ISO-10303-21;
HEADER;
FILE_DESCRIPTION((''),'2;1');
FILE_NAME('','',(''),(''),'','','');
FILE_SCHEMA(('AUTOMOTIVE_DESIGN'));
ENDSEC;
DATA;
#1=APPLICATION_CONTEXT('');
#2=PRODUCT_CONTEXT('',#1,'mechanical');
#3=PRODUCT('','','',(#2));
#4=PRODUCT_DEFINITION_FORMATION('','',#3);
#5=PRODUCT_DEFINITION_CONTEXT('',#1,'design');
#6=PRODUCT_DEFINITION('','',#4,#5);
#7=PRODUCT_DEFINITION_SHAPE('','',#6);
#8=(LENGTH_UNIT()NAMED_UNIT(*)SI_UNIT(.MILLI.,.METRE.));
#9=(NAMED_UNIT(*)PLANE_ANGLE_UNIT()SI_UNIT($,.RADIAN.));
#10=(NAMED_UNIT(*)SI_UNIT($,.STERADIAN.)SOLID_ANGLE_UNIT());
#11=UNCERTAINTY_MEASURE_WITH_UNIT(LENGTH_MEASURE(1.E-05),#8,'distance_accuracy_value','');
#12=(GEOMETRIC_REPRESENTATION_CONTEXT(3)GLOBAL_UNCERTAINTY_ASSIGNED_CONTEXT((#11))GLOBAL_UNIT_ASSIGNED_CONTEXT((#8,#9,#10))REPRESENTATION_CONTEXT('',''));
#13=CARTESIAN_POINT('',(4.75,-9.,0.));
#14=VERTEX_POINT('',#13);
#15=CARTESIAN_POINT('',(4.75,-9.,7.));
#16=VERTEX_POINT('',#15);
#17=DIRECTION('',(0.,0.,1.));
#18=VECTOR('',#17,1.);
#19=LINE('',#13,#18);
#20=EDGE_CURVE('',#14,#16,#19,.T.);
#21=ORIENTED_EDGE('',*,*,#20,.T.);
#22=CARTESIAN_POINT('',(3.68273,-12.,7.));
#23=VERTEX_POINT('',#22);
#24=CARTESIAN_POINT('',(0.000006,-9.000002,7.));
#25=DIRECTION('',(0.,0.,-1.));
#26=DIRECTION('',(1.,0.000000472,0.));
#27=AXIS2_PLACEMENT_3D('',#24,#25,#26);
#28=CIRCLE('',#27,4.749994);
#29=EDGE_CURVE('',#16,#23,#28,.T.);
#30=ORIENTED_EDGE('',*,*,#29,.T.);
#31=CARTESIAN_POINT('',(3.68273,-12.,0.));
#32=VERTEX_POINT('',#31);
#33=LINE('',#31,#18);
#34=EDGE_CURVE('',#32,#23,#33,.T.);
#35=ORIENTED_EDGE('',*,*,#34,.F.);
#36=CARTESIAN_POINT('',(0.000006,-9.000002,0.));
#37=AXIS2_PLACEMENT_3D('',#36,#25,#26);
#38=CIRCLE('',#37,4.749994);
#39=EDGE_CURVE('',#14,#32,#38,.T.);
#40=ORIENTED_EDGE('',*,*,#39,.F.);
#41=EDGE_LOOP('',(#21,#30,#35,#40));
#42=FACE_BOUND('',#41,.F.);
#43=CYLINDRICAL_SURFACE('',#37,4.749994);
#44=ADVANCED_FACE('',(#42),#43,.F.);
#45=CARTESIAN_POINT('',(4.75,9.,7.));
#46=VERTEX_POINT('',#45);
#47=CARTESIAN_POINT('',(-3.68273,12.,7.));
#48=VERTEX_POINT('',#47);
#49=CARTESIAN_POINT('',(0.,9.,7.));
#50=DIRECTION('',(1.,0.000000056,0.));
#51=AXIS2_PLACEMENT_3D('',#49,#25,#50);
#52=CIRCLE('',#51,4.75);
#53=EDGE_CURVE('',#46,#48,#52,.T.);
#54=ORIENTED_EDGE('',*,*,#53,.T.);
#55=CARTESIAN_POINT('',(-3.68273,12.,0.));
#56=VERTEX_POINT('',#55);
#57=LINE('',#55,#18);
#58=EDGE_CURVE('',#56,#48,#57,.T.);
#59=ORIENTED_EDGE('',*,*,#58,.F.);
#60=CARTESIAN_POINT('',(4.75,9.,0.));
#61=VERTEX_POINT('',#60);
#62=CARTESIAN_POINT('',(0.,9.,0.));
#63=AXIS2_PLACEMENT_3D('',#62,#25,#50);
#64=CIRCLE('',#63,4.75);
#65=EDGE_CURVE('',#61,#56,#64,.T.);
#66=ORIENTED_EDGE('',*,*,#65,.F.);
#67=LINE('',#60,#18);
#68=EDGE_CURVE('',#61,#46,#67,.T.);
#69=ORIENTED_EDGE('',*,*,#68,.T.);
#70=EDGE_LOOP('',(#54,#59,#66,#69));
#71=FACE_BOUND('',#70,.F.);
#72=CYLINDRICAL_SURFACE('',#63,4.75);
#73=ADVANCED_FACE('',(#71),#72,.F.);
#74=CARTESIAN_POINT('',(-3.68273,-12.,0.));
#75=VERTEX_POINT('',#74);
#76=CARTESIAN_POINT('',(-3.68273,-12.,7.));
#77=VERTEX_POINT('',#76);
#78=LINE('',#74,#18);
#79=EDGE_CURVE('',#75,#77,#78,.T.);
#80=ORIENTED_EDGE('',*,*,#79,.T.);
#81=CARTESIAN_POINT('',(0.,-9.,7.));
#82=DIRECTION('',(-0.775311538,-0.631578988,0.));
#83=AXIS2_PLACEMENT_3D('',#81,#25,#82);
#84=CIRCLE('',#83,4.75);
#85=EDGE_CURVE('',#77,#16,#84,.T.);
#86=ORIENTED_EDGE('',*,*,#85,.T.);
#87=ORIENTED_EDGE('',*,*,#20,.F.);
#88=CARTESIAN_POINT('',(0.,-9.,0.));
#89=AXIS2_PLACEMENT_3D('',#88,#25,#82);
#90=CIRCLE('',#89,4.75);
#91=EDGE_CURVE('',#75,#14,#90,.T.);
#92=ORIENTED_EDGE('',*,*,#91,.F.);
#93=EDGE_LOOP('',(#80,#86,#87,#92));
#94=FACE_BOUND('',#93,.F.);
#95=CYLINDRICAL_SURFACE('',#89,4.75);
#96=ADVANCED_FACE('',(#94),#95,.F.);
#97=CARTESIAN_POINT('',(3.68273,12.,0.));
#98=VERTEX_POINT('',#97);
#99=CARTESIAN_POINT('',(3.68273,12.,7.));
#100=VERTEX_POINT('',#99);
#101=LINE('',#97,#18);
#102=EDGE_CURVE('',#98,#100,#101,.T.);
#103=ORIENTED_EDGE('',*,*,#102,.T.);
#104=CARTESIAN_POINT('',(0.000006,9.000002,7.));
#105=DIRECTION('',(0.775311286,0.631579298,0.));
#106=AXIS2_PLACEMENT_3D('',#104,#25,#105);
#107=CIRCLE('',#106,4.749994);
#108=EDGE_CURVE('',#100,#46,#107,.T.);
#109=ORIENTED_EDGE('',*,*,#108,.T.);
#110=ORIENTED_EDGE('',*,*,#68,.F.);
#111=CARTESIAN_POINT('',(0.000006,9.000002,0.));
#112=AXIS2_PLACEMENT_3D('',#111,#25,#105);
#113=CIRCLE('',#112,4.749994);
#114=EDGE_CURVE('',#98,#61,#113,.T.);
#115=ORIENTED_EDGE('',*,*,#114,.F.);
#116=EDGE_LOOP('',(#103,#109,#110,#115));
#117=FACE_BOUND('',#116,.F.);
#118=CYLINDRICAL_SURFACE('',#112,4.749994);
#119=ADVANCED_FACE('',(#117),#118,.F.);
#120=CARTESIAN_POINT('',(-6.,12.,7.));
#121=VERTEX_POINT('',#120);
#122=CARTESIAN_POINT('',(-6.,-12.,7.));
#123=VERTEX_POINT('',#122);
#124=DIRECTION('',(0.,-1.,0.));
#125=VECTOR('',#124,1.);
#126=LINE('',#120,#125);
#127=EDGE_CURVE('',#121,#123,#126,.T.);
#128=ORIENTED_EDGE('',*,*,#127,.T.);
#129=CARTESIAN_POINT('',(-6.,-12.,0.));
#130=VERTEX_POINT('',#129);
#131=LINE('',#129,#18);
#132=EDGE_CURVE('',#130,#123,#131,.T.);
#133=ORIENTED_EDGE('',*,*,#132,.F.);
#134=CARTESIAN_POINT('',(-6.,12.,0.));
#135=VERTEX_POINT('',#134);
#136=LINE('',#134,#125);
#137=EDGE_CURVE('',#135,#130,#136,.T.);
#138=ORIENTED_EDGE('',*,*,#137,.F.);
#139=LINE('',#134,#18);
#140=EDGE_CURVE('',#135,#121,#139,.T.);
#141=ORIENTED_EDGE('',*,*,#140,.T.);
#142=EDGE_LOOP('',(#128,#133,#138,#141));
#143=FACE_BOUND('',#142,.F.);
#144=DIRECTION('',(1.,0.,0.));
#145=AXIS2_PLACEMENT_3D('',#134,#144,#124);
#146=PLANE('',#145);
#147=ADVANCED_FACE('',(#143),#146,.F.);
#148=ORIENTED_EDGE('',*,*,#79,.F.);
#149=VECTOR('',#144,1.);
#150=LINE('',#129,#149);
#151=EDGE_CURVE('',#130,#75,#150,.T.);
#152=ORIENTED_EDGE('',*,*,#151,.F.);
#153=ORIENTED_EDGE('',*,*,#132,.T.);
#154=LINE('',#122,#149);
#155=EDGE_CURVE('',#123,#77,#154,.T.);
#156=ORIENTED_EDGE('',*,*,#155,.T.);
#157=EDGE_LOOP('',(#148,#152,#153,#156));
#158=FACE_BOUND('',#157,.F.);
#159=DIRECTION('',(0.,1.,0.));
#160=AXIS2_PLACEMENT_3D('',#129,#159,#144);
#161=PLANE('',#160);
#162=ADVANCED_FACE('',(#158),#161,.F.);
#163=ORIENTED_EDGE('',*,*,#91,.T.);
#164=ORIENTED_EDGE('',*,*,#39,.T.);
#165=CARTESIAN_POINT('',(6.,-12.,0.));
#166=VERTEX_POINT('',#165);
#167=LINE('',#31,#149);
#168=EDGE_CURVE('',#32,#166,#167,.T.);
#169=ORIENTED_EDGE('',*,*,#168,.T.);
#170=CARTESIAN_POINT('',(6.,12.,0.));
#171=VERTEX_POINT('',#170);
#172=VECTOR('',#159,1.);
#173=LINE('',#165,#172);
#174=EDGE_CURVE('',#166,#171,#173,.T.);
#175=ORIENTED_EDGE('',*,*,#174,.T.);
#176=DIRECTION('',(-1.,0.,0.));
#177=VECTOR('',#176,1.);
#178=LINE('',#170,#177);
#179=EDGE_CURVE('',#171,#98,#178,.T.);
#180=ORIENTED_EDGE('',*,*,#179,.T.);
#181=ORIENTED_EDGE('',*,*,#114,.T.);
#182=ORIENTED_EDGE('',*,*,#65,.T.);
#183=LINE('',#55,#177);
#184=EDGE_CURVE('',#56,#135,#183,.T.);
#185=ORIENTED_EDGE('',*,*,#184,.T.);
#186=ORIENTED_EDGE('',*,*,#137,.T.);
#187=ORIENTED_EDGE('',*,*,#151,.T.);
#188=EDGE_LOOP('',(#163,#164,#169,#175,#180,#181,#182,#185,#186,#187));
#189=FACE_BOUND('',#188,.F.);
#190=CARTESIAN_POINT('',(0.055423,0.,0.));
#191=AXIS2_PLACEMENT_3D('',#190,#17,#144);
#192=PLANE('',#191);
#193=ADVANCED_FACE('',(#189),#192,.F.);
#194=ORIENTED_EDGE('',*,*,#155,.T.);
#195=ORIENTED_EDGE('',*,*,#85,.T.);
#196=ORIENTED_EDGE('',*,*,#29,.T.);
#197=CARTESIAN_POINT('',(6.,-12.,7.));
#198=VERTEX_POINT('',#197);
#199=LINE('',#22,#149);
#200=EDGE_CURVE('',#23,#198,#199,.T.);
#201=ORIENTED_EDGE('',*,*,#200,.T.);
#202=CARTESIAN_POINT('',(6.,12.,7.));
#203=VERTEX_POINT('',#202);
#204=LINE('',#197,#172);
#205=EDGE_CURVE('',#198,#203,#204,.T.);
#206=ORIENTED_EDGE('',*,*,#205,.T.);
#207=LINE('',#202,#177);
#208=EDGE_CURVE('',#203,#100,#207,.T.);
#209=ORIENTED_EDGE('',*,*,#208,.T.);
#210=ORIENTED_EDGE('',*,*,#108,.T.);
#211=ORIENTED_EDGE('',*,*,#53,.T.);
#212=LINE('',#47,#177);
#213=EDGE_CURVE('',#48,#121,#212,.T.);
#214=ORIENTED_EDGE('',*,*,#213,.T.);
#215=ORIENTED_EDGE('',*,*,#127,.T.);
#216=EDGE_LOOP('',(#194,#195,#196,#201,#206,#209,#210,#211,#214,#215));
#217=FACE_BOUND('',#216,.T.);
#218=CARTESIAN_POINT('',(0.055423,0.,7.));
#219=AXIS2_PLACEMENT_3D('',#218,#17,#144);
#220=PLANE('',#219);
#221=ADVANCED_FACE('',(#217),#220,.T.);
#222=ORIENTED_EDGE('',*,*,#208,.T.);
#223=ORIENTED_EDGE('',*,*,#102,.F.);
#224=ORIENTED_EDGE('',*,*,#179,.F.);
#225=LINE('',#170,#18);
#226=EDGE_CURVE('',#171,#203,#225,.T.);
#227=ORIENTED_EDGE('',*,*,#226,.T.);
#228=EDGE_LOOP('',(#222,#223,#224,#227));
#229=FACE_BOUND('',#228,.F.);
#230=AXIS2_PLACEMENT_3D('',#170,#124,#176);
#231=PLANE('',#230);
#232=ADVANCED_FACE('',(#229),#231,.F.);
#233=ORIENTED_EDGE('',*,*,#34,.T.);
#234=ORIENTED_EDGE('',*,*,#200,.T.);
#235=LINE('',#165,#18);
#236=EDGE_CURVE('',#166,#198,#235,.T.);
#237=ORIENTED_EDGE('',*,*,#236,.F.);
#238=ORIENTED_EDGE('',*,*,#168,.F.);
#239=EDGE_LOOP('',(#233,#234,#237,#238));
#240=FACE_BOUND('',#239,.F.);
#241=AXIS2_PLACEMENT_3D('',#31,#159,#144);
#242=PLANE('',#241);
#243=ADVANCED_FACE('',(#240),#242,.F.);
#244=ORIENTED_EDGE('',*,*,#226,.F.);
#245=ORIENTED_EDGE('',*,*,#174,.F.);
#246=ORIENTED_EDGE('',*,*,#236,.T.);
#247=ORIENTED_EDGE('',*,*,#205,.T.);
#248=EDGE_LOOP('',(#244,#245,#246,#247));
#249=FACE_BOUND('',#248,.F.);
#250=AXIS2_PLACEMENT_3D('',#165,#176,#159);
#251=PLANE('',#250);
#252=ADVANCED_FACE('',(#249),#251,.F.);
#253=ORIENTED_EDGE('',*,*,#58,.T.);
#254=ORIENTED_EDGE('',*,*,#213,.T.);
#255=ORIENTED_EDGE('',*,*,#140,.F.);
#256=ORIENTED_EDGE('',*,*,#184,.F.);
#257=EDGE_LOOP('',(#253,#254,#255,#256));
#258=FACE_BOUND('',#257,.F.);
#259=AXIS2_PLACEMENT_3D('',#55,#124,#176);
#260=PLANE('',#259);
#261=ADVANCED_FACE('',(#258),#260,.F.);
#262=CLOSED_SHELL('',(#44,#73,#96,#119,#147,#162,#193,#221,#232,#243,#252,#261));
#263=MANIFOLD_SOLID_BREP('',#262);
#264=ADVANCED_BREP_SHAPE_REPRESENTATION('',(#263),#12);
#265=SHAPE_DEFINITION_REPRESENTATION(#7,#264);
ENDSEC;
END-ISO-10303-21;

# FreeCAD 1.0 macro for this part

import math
import FreeCAD as App
import Part
import Sketcher
from FreeCAD import Vector

doc = App.newDocument("Part")
body = doc.addObject("PartDesign::Body", "Body")

# Sketch on XY plane
sketch1 = body.newObject("Sketcher::SketchObject", "Sketch")
sketch1.AttachmentSupport = (doc.getObject("XY_Plane"), [""])
sketch1.MapMode = "FlatFace"
sketch1.addGeometry([
    Part.LineSegment(Vector(6, -12, 0), Vector(6, 12, 0)),  # 0
    Part.LineSegment(Vector(6, 12, 0), Vector(3.68273, 12, 0)),  # 1
    Part.ArcOfCircle(Part.Circle(Vector(0.000006, 9.000002, 0), Vector(0, 0, 1), 4.749994), math.radians(-0.000027), math.radians(39.166737)),  # 2
    Part.ArcOfCircle(Part.Circle(Vector(0, 9, 0), Vector(0, 0, 1), 4.75), math.radians(140.833286), math.radians(360.000003)),  # 3
    Part.LineSegment(Vector(-3.68273, 12, 0), Vector(-6, 12, 0)),  # 4
    Part.LineSegment(Vector(-6, 12, 0), Vector(-6, -12, 0)),  # 5
    Part.LineSegment(Vector(-6, -12, 0), Vector(-3.68273, -12, 0)),  # 6
    Part.ArcOfCircle(Part.Circle(Vector(0, -9, 0), Vector(0, 0, 1), 4.75), math.radians(-0.000003), math.radians(219.166714)),  # 7
    Part.ArcOfCircle(Part.Circle(Vector(0.000006, -9.000002, 0), Vector(0, 0, 1), 4.749994), math.radians(-39.166737), math.radians(0.000027)),  # 8
    Part.LineSegment(Vector(3.68273, -12, 0), Vector(6, -12, 0)),  # 9
], False)
sketch1.addConstraint([
    Sketcher.Constraint("Coincident", 0, 2, 1, 1),
    Sketcher.Constraint("Coincident", 1, 2, 2, 2),
    Sketcher.Constraint("Tangent", 2, 1, 3, 2),
    Sketcher.Constraint("Coincident", 3, 1, 4, 1),
    Sketcher.Constraint("Coincident", 4, 2, 5, 1),
    Sketcher.Constraint("Coincident", 5, 2, 6, 1),
    Sketcher.Constraint("Coincident", 6, 2, 7, 2),
    Sketcher.Constraint("Tangent", 7, 1, 8, 2),
    Sketcher.Constraint("Coincident", 8, 1, 9, 1),
    Sketcher.Constraint("Coincident", 9, 2, 0, 1),
    Sketcher.Constraint("Vertical", 0),
    Sketcher.Constraint("Horizontal", 1),
    Sketcher.Constraint("Horizontal", 4),
    Sketcher.Constraint("Vertical", 5),
    Sketcher.Constraint("Horizontal", 6),
    Sketcher.Constraint("Horizontal", 9),
    Sketcher.Constraint("Equal", 3, 7),
    Sketcher.Constraint("Equal", 2, 8),
    Sketcher.Constraint("Symmetric", 2, 3, 7, 3, -1, 1),
    Sketcher.Constraint("Symmetric", 0, 2, 5, 2, -1, 1),
    Sketcher.Constraint("Symmetric", 3, 1, 8, 1, -1, 1),
    Sketcher.Constraint("Symmetric", 1, 2, 3, 1, -2),
    Sketcher.Constraint("Horizontal", 3, 3, 2, 1),
    Sketcher.Constraint("DistanceY", 0, 1, 0, 2, 24.0),
    Sketcher.Constraint("Radius", 3, 4.75),
    Sketcher.Constraint("DistanceY", -1, 1, 3, 3, 9.0),
    Sketcher.Constraint("DistanceX", -1, 1, 0, 2, 6.0),
    Sketcher.Constraint("DistanceY", 7, 1, -1, 1, 9.0),
])
pad1 = body.newObject("PartDesign::Pad", "Pad")
pad1.Profile = sketch1
pad1.Length = 7

doc.recompute()
